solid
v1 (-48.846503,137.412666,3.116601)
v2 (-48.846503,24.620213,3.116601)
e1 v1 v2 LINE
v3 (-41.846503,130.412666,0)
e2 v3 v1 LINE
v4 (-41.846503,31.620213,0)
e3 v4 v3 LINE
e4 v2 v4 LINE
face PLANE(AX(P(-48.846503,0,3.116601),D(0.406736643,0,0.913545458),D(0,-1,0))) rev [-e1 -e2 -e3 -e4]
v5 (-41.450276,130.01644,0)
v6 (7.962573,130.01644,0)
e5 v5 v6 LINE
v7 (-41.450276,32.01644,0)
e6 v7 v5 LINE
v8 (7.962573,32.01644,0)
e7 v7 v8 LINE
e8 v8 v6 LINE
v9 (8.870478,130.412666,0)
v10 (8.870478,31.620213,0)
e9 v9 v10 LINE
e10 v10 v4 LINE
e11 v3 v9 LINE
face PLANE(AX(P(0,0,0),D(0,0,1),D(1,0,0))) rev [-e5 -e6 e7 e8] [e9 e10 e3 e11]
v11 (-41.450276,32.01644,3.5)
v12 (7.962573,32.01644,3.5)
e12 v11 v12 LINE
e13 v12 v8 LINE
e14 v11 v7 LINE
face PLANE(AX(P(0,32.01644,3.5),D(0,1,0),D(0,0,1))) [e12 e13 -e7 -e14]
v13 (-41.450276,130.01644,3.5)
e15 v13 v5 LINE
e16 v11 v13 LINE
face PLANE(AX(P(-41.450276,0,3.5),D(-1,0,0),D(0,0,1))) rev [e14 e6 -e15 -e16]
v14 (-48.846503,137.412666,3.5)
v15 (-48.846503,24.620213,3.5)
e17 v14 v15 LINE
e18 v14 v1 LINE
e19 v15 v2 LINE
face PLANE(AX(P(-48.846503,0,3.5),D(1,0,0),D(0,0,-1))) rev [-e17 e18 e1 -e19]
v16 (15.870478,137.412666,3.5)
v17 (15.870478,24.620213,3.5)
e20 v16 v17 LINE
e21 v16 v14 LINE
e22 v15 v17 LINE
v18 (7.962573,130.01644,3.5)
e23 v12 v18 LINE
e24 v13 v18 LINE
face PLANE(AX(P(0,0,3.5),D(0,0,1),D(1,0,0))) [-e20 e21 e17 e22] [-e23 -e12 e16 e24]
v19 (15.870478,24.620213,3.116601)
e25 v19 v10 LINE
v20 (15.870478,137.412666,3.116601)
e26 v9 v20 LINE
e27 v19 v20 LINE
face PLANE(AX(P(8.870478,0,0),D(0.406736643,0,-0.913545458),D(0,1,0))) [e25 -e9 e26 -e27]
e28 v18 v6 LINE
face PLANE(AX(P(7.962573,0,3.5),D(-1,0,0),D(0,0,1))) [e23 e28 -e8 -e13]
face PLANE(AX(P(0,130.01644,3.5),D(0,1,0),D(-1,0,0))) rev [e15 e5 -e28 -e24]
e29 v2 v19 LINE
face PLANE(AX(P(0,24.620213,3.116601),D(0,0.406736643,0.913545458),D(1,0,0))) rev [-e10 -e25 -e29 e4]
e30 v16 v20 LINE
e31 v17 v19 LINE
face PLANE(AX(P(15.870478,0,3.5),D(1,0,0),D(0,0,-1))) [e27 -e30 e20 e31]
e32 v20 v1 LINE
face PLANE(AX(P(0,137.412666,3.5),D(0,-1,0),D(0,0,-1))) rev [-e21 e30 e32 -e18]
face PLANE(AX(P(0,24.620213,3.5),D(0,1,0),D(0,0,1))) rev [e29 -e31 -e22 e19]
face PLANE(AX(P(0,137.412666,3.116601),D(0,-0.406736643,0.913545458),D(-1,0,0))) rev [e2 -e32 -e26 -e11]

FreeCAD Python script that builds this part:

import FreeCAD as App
import Part
import Sketcher
from FreeCAD import Vector
Q = App.Units.Quantity


def edges_at(feature, points):
    """Names of the edges that pass closest to the given points."""
    edges = feature.Shape.Edges
    near = lambda p: min(range(len(edges)), key=lambda i: edges[i].distToShape(Part.Vertex(*p))[0])
    return sorted({f"Edge{near(p) + 1}" for p in points})


def add_polygon(sketch, points):
    """Adds a closed chain of lines whose ends are joined by coincident constraints."""
    first, n = sketch.GeometryCount, len(points)
    for a, b in zip(points, points[1:] + points[:1]):
        sketch.addGeometry(Part.LineSegment(App.Vector(*a, 0), App.Vector(*b, 0)), False)
    for i in range(n):
        sketch.addConstraint(Sketcher.Constraint("Coincident", first + i, 2, first + (i + 1) % n, 1))

doc = App.newDocument("Part")
body = doc.addObject("PartDesign::Body", "Body")

sketch1 = body.newObject("Sketcher::SketchObject", "Sketch")
sketch1.AttachmentSupport = (doc.getObject("XY_Plane"), [""])
sketch1.MapMode = "FlatFace"
add_polygon(sketch1, [(-49, 25), (16, 25), (16, 137), (-49, 137)])
add_polygon(sketch1, [(-41, 130), (8, 130), (8, 32), (-41, 32)])
sketch1.addConstraint([
    Sketcher.Constraint("Horizontal", 0),
    Sketcher.Constraint("Vertical", 1),
    Sketcher.Constraint("Horizontal", 2),
    Sketcher.Constraint("Vertical", 3),
    Sketcher.Constraint("Horizontal", 4),
    Sketcher.Constraint("Vertical", 5),
    Sketcher.Constraint("Horizontal", 6),
    Sketcher.Constraint("Vertical", 7),
    Sketcher.Constraint("DistanceY", 5, 2, 5, 1, Q("98 mm")),
    Sketcher.Constraint("DistanceX", 0, 1, 0, 2, Q("64.716981 mm")),
    Sketcher.Constraint("DistanceX", 4, 1, 4, 2, Q("49.41285 mm")),
    Sketcher.Constraint("DistanceY", 1, 1, 1, 2, Q("112.792453 mm")),
    Sketcher.Constraint("DistanceX", -1, 1, 0, 2, Q("15.870478 mm")),
    Sketcher.Constraint("DistanceY", -1, 1, 4, 2, Q("130.01644 mm")),
    Sketcher.Constraint("DistanceY", -1, 1, 0, 2, Q("24.620213 mm")),
    Sketcher.Constraint("DistanceX", -1, 1, 4, 2, Q("7.962573 mm")),
])
pad1 = body.newObject("PartDesign::Pad", "Pad")
pad1.Profile = sketch1
pad1.Length = 3.5
doc.recompute()

chamfer = body.newObject("PartDesign::Chamfer", "Chamfer")
chamfer.Base = (pad1, edges_at(pad1, [
    (-48.847, 81.016, 0),
    (-16.488, 137.413, 0),
    (15.87, 81.016, 0),
    (-16.488, 24.62, 0),
]))
chamfer.ChamferType = "Two distances"
chamfer.Size = 7
chamfer.Size2 = 3.116601
chamfer.FlipDirection = True

doc.recompute()
